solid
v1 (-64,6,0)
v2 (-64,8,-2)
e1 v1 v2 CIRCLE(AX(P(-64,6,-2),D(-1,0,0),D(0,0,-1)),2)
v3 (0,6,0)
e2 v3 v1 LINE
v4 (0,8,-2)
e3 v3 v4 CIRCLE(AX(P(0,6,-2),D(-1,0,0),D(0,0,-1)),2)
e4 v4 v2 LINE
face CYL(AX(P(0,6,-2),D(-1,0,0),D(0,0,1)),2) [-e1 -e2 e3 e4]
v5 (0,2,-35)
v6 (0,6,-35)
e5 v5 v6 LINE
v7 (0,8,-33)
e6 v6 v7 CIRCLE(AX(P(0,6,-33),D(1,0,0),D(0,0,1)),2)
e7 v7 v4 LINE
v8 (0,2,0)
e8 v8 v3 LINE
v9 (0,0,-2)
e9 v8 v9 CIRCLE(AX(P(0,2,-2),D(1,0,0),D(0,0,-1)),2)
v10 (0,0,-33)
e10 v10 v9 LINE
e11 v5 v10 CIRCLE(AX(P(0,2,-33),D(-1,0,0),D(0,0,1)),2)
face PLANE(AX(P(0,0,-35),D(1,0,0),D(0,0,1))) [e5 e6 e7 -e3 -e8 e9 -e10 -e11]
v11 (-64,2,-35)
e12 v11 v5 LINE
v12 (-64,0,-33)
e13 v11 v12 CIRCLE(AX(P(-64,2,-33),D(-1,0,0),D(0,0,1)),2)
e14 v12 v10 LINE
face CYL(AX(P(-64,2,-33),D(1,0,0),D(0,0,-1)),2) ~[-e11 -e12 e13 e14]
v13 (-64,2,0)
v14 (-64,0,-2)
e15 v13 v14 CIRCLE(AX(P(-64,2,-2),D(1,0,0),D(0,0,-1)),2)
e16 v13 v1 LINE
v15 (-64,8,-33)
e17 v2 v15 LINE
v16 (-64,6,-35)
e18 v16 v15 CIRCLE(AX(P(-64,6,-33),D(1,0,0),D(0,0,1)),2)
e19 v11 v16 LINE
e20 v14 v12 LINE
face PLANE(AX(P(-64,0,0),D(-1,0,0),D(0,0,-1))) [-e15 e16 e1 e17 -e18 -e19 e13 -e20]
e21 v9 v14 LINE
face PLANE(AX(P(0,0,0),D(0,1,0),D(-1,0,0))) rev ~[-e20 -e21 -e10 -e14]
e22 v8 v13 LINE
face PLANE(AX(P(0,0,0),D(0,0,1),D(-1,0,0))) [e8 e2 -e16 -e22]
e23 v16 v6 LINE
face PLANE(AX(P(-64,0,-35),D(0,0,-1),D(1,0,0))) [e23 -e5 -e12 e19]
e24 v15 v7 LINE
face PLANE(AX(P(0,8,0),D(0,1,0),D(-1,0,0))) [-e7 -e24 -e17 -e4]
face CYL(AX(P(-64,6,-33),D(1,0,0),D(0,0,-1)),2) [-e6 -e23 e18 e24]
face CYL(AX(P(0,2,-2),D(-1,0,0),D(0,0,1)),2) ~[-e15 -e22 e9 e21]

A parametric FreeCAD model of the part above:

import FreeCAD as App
import Part
import Sketcher

V = App.Vector


def edges_at(feature, points):
    """Names of the edges that pass closest to the given points."""
    edges = feature.Shape.Edges
    near = lambda p: min(range(len(edges)), key=lambda i: edges[i].distToShape(Part.Vertex(*p))[0])
    return sorted({f"Edge{near(p) + 1}" for p in points})

doc = App.newDocument("Part")
body = doc.addObject("PartDesign::Body", "Body")

sketch1 = body.newObject("Sketcher::SketchObject", "Sketch")
sketch1.AttachmentSupport = (doc.getObject("XZ_Plane"), [""])
sketch1.MapMode = "FlatFace"
sketch1.addGeometry([
    Part.LineSegment(V(-64, 0, 0), V(0, 0, 0)),
    Part.LineSegment(V(0, 0, 0), V(0, -35, 0)),
    Part.LineSegment(V(0, -35, 0), V(-64, -35, 0)),
    Part.LineSegment(V(-64, -35, 0), V(-64, 0, 0)),
], False)
sketch1.addConstraint([
    Sketcher.Constraint("Coincident", 0, 2, 1, 1),
    Sketcher.Constraint("Coincident", 1, 2, 2, 1),
    Sketcher.Constraint("Coincident", 2, 2, 3, 1),
    Sketcher.Constraint("Coincident", 3, 2, 0, 1),
    Sketcher.Constraint("Horizontal", 0),
    Sketcher.Constraint("Vertical", 1),
    Sketcher.Constraint("Horizontal", 2),
    Sketcher.Constraint("Vertical", 3),
    Sketcher.Constraint("Coincident", 0, 2, -1, 1),
    Sketcher.Constraint("DistanceX", 0, 1, 0, 2, 64.0),
    Sketcher.Constraint("DistanceY", 1, 2, 1, 1, 35.0),
])
pad1 = body.newObject("PartDesign::Pad", "Pad")
pad1.Profile = sketch1
pad1.Length = 8
pad1.Reversed = True
doc.recompute()

fillet = body.newObject("PartDesign::Fillet", "Fillet")
fillet.Base = (pad1, edges_at(pad1, [
    (-32, 8, 0),
    (-32, 0, 0),
    (-32, 8, -35),
    (-32, 0, -35),
]))
fillet.Radius = 2

doc.recompute()
